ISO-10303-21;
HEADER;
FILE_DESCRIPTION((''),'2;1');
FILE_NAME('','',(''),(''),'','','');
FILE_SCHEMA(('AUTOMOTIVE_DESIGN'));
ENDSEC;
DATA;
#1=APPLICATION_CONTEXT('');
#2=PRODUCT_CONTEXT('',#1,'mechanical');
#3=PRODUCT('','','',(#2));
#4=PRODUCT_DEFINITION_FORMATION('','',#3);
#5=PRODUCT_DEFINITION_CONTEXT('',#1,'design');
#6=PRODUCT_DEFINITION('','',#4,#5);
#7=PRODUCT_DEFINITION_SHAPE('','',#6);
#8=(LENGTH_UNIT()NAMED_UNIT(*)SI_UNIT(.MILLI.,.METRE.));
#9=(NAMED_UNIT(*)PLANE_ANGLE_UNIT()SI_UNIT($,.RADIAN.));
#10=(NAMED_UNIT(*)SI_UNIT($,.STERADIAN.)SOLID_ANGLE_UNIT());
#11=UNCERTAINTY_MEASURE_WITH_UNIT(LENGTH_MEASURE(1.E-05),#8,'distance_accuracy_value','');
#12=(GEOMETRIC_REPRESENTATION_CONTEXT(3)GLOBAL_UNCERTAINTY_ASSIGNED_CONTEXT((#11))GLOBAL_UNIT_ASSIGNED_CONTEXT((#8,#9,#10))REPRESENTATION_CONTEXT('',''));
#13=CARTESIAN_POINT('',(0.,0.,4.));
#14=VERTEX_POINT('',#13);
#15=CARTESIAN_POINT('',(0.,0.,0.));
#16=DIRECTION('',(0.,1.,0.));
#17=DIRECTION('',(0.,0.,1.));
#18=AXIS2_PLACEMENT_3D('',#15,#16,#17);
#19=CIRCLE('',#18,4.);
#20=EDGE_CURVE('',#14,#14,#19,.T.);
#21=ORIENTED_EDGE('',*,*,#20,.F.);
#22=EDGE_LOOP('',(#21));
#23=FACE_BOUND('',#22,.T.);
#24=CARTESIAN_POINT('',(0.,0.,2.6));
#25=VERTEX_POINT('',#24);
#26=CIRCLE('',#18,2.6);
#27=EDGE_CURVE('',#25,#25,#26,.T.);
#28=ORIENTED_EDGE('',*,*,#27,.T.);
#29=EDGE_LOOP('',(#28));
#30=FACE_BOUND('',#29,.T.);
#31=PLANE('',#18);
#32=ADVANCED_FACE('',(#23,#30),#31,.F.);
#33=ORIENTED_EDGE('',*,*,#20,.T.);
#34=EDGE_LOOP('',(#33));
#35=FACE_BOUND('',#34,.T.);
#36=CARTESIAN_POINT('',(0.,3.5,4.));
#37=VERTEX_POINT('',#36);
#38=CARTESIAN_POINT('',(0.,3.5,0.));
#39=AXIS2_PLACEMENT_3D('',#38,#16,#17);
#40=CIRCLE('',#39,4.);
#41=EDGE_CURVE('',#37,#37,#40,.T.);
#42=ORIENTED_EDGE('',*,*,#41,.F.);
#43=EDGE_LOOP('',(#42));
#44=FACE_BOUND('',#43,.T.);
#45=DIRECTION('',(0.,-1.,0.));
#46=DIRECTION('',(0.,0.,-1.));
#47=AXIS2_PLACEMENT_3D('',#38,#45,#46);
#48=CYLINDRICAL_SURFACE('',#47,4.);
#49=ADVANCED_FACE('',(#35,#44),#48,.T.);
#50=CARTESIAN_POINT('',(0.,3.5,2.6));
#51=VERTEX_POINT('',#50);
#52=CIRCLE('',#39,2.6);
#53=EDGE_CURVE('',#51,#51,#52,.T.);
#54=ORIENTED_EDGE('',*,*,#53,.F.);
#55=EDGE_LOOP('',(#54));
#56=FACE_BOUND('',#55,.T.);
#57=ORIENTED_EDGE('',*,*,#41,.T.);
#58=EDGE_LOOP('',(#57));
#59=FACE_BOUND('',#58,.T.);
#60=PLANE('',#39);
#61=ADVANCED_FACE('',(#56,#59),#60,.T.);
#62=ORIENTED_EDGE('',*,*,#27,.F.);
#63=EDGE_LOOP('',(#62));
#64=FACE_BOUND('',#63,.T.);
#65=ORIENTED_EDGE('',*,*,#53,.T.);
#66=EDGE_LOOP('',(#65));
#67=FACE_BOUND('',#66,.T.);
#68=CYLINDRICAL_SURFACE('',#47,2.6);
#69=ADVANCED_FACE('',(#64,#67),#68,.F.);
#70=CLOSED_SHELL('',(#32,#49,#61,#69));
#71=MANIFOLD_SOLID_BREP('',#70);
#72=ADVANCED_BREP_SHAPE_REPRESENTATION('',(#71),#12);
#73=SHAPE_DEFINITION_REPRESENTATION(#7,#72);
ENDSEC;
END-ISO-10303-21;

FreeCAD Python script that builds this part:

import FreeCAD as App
import Part
import Sketcher
Q = App.Units.Quantity

doc = App.newDocument("Part")
body = doc.addObject("PartDesign::Body", "Body")

# Sketch on XZ plane
sketch1 = doc.addObject("Sketcher::SketchObject", "Sketch")
body.addObject(sketch1)
sketch1.AttachmentSupport = (doc.XZ_Plane, [""])
sketch1.MapMode = "FlatFace"
sketch1.addGeometry([
    Part.Circle(App.Vector(0, 0, 0), App.Vector(0, 0, 1), 4),
    Part.Circle(App.Vector(0, 0, 0), App.Vector(0, 0, 1), 2.6),
], False)
sketch1.addConstraint([
    Sketcher.Constraint("Coincident", 0, 3, -1, 1),
    Sketcher.Constraint("Coincident", 1, 3, -1, 1),
    Sketcher.Constraint("Diameter", 0, Q("8 mm")),
    Sketcher.Constraint("Diameter", 1, Q("5.2 mm")),
])
pad1 = doc.addObject("PartDesign::Pad", "Pad")
body.addObject(pad1)
pad1.Profile = sketch1
pad1.Length = 3.5
pad1.Reversed = True

doc.recompute()
